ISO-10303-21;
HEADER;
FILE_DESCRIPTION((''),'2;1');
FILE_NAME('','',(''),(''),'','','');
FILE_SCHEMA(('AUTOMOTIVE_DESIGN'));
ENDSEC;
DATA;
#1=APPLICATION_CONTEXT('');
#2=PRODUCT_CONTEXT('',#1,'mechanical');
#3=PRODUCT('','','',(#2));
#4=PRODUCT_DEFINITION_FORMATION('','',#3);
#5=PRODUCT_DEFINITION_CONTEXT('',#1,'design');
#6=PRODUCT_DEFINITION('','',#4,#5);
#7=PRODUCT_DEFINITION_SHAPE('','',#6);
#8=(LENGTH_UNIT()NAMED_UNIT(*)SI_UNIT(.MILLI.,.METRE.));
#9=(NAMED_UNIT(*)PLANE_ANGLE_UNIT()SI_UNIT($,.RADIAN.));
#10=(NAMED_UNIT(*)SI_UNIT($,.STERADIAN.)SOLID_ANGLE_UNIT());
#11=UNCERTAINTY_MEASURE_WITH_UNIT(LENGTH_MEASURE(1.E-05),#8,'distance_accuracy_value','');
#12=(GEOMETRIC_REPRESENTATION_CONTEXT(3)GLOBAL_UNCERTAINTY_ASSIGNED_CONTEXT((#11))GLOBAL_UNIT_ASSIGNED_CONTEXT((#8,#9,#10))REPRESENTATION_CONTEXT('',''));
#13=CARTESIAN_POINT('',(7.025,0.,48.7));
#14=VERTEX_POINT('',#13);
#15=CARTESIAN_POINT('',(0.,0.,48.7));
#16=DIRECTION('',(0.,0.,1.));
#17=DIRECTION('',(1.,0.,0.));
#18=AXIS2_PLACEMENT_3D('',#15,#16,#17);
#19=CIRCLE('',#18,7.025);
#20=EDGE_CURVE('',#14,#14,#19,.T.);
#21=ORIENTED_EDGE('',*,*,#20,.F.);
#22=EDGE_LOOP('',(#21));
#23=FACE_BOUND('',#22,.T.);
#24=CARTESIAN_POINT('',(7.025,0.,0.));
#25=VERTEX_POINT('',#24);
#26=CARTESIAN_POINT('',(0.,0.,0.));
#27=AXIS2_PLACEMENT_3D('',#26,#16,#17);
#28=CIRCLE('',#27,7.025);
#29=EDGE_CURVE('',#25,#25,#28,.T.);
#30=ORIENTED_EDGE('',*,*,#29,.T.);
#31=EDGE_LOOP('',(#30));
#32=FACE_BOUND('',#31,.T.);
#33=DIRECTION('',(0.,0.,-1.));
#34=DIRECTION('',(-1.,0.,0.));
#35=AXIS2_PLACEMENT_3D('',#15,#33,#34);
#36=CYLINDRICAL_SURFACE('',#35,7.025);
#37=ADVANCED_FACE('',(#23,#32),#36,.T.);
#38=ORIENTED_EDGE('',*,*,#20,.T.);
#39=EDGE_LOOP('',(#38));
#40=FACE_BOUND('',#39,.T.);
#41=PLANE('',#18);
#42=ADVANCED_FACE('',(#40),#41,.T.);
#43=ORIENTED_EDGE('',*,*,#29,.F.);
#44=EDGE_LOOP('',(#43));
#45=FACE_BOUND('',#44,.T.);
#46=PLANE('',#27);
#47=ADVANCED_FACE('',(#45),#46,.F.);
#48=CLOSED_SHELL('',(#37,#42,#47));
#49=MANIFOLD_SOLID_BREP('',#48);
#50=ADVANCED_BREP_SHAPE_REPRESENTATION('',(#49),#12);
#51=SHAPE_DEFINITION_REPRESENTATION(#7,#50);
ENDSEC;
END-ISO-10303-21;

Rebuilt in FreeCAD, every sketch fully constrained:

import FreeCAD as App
import Part
import Sketcher

V = App.Vector

doc = App.newDocument("Part")
body = doc.addObject("PartDesign::Body", "Body")

sketch1 = body.newObject("Sketcher::SketchObject", "Sketch")
sketch1.AttachmentSupport = (doc.getObject("XY_Plane"), [""])
sketch1.MapMode = "FlatFace"
sketch1.addGeometry(Part.Circle(V(0, 0, 0), V(0, 0, 1), 7), False)
sketch1.addConstraint([
    Sketcher.Constraint("Coincident", 0, 3, -1, 1),
    Sketcher.Constraint("Diameter", 0, 14.05),
])
pad1 = body.newObject("PartDesign::Pad", "Pad")
pad1.Profile = sketch1
pad1.Length = 48.7

doc.recompute()
